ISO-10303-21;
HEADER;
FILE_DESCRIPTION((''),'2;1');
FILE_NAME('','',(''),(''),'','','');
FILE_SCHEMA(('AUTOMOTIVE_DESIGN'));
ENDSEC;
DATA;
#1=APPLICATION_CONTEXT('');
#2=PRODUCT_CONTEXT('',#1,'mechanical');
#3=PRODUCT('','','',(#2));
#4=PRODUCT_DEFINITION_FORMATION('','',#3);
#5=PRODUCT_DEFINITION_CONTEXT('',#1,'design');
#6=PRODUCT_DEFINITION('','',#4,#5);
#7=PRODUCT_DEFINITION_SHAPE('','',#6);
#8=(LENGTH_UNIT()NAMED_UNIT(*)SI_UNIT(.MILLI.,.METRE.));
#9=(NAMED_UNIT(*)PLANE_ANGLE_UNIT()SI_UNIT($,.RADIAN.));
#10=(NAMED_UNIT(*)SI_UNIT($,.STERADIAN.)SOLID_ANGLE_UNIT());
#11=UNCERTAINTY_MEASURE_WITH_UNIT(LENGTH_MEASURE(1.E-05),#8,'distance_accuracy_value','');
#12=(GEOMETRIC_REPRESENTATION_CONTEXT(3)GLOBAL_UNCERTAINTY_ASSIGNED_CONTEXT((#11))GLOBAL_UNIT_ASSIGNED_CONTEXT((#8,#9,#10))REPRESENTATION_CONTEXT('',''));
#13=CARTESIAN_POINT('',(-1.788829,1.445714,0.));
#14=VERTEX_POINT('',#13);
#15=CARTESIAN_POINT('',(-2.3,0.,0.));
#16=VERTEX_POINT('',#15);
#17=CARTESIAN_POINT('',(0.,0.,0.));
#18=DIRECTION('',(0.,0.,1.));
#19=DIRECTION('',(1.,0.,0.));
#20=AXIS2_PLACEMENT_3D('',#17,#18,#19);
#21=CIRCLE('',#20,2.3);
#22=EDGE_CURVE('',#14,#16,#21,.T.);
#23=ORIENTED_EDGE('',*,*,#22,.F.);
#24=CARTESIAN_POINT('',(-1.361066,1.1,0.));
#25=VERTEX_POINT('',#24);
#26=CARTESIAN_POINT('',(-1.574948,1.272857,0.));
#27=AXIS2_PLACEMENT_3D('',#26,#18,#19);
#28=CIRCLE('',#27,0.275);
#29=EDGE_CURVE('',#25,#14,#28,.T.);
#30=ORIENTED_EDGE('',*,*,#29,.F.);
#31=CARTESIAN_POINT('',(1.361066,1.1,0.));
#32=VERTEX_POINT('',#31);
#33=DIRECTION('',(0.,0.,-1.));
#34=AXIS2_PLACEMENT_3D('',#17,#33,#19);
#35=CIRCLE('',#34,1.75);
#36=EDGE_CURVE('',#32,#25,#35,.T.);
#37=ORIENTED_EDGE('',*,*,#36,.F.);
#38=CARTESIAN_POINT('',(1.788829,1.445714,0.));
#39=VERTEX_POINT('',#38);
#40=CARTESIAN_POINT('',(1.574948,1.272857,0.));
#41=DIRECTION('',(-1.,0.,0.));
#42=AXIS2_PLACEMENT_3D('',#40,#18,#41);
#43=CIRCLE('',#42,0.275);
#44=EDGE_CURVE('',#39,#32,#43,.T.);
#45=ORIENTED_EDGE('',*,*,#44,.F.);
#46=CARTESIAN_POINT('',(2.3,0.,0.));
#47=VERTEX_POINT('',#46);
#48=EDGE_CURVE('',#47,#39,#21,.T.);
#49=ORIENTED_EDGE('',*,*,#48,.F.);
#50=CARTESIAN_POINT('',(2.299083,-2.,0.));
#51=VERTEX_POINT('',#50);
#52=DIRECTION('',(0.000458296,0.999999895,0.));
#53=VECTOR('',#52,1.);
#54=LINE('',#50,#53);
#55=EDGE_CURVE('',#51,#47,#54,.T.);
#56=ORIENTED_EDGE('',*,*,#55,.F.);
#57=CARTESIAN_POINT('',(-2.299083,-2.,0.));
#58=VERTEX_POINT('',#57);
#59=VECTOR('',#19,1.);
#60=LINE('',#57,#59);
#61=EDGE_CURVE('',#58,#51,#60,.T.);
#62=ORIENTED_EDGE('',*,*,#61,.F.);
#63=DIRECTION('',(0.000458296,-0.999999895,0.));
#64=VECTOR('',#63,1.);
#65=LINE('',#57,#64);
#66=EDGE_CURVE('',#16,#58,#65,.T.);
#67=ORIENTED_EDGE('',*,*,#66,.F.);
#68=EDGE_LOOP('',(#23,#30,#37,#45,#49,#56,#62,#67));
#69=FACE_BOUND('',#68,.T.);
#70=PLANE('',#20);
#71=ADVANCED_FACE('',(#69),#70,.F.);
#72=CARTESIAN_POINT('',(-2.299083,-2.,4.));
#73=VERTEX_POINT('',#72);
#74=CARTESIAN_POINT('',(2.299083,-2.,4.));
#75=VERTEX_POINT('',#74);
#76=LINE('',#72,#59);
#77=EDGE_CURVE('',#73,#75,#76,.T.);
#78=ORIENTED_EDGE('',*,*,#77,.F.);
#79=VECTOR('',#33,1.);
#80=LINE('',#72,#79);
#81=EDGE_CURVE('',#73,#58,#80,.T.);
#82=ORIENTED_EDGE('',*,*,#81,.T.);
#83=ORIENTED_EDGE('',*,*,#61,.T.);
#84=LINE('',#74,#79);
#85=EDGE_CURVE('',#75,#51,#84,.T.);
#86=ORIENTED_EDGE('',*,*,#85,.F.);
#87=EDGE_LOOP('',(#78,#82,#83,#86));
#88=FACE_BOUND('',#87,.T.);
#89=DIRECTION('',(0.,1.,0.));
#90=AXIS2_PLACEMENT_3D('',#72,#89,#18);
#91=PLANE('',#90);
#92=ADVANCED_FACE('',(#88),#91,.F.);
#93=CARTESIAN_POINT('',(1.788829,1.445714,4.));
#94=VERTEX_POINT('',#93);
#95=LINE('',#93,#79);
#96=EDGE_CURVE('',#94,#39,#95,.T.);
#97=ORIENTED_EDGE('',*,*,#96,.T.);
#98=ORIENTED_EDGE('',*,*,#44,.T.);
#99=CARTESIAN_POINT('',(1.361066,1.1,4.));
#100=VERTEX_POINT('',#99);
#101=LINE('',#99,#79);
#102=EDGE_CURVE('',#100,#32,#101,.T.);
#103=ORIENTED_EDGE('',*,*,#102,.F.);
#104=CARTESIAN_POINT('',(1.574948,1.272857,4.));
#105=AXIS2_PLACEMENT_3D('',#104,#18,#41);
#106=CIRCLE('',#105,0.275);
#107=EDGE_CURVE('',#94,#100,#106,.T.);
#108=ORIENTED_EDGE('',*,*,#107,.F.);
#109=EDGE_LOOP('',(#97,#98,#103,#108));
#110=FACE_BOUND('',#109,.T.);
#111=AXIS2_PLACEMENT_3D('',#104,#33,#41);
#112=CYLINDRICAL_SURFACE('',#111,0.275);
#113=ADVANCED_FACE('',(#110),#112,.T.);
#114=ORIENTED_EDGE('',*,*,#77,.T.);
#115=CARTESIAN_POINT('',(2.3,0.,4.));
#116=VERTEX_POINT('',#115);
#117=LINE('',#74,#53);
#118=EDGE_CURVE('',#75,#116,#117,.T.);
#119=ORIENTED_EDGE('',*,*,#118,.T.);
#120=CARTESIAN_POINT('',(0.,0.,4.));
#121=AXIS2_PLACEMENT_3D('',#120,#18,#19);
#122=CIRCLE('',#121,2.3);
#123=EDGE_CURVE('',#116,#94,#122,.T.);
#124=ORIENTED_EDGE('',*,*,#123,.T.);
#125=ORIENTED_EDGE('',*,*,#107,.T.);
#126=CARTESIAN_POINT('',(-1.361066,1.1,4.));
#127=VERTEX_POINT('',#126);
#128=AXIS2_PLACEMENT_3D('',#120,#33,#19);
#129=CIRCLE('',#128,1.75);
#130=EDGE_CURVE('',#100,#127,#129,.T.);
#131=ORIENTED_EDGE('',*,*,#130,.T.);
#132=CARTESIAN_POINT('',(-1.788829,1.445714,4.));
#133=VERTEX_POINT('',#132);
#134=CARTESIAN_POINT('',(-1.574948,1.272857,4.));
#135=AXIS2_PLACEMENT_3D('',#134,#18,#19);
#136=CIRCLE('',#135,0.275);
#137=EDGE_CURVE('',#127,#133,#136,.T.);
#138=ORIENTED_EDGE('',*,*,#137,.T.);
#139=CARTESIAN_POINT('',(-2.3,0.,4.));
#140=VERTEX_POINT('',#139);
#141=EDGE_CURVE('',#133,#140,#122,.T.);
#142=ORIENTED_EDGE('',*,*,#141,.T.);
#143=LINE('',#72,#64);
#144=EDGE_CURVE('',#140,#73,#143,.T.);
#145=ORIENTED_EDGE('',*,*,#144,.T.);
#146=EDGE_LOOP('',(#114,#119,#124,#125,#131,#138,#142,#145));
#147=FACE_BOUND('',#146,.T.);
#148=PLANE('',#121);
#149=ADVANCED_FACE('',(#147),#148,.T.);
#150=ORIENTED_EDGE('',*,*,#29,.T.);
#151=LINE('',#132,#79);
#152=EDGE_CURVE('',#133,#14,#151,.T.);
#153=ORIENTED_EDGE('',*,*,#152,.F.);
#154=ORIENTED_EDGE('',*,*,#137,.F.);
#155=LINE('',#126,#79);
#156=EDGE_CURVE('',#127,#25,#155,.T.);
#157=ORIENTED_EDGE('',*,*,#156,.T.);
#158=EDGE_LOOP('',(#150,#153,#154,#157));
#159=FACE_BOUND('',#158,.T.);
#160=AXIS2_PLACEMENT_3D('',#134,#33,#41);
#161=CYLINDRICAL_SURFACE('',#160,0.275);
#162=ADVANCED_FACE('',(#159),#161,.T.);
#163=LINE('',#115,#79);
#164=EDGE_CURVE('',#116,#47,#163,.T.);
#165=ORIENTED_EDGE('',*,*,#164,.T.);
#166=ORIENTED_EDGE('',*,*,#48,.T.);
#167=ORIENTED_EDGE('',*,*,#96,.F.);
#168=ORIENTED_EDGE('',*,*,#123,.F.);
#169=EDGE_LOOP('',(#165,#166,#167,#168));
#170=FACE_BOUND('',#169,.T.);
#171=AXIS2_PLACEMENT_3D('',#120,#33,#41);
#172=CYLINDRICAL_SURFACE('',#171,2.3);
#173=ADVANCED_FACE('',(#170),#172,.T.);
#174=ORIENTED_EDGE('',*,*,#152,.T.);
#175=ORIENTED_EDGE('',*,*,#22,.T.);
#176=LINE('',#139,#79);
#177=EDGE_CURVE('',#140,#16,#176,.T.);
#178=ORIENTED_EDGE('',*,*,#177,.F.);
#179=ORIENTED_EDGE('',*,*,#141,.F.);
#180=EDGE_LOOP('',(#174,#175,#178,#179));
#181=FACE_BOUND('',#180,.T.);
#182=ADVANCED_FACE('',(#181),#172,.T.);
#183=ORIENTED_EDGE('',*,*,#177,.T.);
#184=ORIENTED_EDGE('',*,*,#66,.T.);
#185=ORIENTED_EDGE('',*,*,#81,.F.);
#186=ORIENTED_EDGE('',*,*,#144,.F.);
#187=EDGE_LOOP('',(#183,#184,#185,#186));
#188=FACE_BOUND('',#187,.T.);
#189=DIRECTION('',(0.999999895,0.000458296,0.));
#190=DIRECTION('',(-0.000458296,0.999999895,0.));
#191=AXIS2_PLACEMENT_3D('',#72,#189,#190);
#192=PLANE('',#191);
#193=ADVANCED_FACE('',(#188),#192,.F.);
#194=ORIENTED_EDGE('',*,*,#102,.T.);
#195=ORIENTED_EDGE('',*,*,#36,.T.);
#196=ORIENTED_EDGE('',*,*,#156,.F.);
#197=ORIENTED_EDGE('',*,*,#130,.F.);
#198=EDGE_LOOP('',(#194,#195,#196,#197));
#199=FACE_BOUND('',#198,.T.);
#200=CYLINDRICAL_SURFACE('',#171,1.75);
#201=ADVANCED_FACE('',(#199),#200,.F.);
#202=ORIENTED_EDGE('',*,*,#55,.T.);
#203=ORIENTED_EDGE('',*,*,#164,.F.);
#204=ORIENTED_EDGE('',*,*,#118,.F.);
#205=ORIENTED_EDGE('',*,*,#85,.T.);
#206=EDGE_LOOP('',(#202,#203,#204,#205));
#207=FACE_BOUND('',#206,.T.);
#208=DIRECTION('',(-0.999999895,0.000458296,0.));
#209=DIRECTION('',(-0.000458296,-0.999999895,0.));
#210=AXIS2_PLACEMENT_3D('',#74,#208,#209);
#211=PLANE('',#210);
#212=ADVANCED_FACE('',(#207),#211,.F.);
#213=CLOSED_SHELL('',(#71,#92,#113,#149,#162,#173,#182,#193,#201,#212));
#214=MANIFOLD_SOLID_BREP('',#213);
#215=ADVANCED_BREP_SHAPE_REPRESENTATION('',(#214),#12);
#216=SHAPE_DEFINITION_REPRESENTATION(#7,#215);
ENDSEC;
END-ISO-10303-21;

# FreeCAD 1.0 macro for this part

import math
import FreeCAD as App
import Part
import Sketcher
from FreeCAD import Vector
Q = App.Units.Quantity

doc = App.newDocument("Part")
body = doc.addObject("PartDesign::Body", "Body")

# Sketch on XY plane
sketch1 = body.newObject("Sketcher::SketchObject", "Sketch")
sketch1.AttachmentSupport = (doc.getObject("XY_Plane"), [""])
sketch1.MapMode = "FlatFace"
sketch1.addGeometry(Part.LineSegment(Vector(-2.3, -2, 0), Vector(2.3, -2, 0)), False)
sketch1.addGeometry(Part.LineSegment(Vector(2.3, -2, 0), Vector(2.3, 0, 0)), False)
sketch1.addGeometry(Part.ArcOfCircle(Part.Circle(Vector(0, 0, 0), Vector(0, 0, 1), 2.3), math.radians(0), math.radians(39)), False)
sketch1.addGeometry(Part.ArcOfCircle(Part.Circle(Vector(1.57, 1.27, 0), Vector(0, 0, 1), 0.28), math.radians(39), math.radians(219)), False)
sketch1.addGeometry(Part.ArcOfCircle(Part.Circle(Vector(0, 0, 0), Vector(0, 0, 1), 1.75), math.radians(141), math.radians(399)), False)
sketch1.addGeometry(Part.ArcOfCircle(Part.Circle(Vector(-1.57, 1.27, 0), Vector(0, 0, 1), 0.28), math.radians(-39), math.radians(141)), False)
sketch1.addGeometry(Part.ArcOfCircle(Part.Circle(Vector(0, 0, 0), Vector(0, 0, 1), 2.3), math.radians(141), math.radians(180)), False)
sketch1.addGeometry(Part.LineSegment(Vector(-2.3, 0, 0), Vector(-2.3, -2, 0)), False)
sketch1.addConstraint(Sketcher.Constraint("Coincident", 0, 2, 1, 1))
sketch1.addConstraint(Sketcher.Constraint("Coincident", 1, 2, 2, 1))
sketch1.addConstraint(Sketcher.Constraint("Tangent", 2, 2, 3, 1))
sketch1.addConstraint(Sketcher.Constraint("Tangent", 3, 2, 4, 2))
sketch1.addConstraint(Sketcher.Constraint("Tangent", 4, 1, 5, 1))
sketch1.addConstraint(Sketcher.Constraint("Tangent", 5, 2, 6, 1))
sketch1.addConstraint(Sketcher.Constraint("Coincident", 6, 2, 7, 1))
sketch1.addConstraint(Sketcher.Constraint("Coincident", 7, 2, 0, 1))
sketch1.addConstraint(Sketcher.Constraint("Horizontal", 0))
sketch1.addConstraint(Sketcher.Constraint("Coincident", 2, 3, -1, 1))
sketch1.addConstraint(Sketcher.Constraint("Coincident", 4, 3, -1, 1))
sketch1.addConstraint(Sketcher.Constraint("Coincident", 6, 3, -1, 1))
sketch1.addConstraint(Sketcher.Constraint("Equal", 3, 5))
sketch1.addConstraint(Sketcher.Constraint("PointOnObject", 1, 2, -1))
sketch1.addConstraint(Sketcher.Constraint("PointOnObject", 6, 2, -1))
sketch1.addConstraint(Sketcher.Constraint("Horizontal", 3, 3, 5, 3))
sketch1.addConstraint(Sketcher.Constraint("Radius", 2, Q("2.3 mm")))
sketch1.addConstraint(Sketcher.Constraint("Radius", 4, Q("1.75 mm")))
sketch1.addConstraint(Sketcher.Constraint("Distance", 1, Q("2 mm")))
sketch1.addConstraint(Sketcher.Constraint("DistanceY", -1, 1, 3, 2, Q("1.1 mm")))
sketch1.addConstraint(Sketcher.Constraint("DistanceX", 0, 1, 0, 2, Q("4.598167 mm")))
sketch1.addConstraint(Sketcher.Constraint("DistanceX", 5, 3, 0, 2, Q("3.874031 mm")))
pad1 = body.newObject("PartDesign::Pad", "Pad")
pad1.Profile = sketch1
pad1.Length = 4

doc.recompute()
